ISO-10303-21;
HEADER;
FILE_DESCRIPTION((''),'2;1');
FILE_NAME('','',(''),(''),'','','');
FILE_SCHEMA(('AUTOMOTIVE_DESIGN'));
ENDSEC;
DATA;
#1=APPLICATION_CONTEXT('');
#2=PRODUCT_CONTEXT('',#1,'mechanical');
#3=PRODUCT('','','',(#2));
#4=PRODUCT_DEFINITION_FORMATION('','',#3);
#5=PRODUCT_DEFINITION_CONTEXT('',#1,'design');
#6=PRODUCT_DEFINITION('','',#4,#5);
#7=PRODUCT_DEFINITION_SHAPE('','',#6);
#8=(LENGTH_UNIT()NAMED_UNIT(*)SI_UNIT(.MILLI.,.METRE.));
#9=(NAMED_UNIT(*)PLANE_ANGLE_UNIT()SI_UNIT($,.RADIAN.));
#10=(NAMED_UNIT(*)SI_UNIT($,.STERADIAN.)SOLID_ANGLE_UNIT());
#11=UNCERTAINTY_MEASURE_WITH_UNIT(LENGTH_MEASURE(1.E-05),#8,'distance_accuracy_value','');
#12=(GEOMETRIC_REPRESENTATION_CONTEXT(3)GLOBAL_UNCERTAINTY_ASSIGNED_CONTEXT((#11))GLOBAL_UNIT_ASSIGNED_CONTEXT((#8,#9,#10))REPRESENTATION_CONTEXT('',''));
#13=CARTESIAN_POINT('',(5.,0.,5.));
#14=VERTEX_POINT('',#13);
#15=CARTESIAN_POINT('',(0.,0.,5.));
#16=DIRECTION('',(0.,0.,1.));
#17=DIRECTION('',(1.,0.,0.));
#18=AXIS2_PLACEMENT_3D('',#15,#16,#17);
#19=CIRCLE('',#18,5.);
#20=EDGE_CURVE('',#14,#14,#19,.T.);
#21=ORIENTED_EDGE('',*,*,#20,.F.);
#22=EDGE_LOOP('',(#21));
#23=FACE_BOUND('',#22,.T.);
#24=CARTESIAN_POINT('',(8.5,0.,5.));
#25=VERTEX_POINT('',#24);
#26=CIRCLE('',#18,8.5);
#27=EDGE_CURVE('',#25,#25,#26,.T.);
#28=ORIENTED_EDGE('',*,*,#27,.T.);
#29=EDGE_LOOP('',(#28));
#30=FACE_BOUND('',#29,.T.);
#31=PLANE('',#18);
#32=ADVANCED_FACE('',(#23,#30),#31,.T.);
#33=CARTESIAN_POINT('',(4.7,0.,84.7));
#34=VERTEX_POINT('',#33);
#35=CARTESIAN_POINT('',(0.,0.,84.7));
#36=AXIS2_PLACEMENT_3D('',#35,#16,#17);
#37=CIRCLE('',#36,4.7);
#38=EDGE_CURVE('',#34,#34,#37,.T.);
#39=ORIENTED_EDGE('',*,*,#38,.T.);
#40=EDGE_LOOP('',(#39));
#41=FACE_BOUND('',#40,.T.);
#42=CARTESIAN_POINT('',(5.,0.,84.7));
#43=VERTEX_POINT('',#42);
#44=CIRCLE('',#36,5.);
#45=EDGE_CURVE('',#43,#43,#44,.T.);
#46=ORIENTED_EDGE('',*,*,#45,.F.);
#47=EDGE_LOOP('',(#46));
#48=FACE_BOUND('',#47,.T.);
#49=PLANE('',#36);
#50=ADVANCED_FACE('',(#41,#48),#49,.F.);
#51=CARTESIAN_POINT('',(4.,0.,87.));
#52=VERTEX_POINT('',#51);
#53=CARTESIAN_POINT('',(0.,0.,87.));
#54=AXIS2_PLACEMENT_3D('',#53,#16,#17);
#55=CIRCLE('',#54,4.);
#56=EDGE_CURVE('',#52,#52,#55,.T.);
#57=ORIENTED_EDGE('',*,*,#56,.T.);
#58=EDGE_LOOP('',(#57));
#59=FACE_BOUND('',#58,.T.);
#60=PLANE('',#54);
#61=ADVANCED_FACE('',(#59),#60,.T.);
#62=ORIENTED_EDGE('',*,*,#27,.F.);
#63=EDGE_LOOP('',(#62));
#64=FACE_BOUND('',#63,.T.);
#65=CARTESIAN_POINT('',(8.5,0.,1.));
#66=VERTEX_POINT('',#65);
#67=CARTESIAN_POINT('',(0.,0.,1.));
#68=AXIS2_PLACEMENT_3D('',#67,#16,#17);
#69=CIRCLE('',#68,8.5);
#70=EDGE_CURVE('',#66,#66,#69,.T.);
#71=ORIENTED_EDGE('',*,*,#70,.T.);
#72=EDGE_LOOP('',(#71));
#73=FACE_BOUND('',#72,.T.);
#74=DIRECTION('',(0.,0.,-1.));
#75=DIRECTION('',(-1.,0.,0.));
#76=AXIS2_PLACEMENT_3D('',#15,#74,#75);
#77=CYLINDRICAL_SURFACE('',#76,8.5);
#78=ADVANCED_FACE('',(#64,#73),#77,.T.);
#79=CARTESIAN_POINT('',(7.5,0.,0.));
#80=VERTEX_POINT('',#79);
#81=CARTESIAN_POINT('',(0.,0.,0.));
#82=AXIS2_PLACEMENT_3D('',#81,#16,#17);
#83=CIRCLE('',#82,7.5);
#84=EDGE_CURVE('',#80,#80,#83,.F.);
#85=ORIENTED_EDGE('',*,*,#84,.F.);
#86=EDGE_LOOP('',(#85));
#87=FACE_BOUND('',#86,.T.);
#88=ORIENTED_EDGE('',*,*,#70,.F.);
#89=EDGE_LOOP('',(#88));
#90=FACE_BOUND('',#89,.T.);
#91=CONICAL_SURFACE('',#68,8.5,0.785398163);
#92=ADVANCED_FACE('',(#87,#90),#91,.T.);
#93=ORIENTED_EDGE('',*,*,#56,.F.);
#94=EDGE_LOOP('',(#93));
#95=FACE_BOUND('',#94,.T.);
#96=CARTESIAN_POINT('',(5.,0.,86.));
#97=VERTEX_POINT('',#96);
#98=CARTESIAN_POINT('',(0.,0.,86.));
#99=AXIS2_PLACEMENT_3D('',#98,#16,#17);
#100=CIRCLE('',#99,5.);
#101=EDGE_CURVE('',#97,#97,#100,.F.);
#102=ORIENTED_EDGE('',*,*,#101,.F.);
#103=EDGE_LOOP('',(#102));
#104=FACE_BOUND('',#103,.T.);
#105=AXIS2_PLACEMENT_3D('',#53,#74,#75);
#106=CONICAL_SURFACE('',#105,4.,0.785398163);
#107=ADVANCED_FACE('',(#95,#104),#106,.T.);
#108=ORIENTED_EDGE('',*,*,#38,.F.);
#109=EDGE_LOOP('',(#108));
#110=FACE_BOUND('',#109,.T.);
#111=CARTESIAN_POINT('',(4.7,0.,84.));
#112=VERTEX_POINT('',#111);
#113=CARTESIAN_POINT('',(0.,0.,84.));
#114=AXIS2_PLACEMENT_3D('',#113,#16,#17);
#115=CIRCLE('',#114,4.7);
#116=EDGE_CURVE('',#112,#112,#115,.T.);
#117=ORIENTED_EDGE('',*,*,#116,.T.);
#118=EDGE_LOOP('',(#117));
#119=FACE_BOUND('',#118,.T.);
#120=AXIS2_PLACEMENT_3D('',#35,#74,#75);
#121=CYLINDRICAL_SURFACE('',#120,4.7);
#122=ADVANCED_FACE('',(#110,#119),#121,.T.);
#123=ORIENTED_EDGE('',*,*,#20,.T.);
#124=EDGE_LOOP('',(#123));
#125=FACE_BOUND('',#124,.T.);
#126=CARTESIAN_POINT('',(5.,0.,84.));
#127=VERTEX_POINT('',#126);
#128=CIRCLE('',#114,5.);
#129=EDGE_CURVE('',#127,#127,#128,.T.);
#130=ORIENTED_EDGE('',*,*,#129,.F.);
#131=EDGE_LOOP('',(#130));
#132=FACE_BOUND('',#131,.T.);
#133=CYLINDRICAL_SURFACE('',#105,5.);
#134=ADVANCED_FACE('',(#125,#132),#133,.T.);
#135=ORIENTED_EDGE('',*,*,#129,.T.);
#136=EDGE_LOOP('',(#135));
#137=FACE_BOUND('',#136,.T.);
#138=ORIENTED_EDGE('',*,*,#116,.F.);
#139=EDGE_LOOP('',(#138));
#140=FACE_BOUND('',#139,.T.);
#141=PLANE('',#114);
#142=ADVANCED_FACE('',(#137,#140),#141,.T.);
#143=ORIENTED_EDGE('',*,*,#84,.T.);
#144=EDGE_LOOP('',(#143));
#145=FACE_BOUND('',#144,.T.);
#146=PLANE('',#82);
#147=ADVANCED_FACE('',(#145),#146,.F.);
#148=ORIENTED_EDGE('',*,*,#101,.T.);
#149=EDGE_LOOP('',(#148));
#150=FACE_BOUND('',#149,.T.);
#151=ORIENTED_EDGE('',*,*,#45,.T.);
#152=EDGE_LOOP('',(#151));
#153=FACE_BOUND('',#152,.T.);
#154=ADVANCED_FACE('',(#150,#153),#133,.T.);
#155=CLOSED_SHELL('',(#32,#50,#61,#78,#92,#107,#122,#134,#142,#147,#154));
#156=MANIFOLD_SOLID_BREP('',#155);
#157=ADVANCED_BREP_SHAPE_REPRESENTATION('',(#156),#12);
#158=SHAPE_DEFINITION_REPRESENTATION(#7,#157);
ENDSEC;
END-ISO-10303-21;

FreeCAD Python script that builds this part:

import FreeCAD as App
import Part
import Sketcher
from FreeCAD import Vector
Q = App.Units.Quantity


def edges_at(feature, points):
    """Names of the edges that pass closest to the given points."""
    edges = feature.Shape.Edges
    near = lambda p: min(range(len(edges)), key=lambda i: edges[i].distToShape(Part.Vertex(*p))[0])
    return sorted({f"Edge{near(p) + 1}" for p in points})

doc = App.newDocument("Part")
body = doc.addObject("PartDesign::Body", "Body")

# Sketch on XY plane
sketch1 = body.newObject("Sketcher::SketchObject", "Sketch")
sketch1.AttachmentSupport = (doc.getObject("XY_Plane"), [""])
sketch1.MapMode = "FlatFace"
sketch1.addGeometry(Part.Circle(Vector(0, 0, 0), Vector(0, 0, 1), 8), False)
sketch1.addConstraint(Sketcher.Constraint("Coincident", 0, 3, -1, 1))
sketch1.addConstraint(Sketcher.Constraint("Diameter", 0, Q("17 mm")))
pad1 = body.newObject("PartDesign::Pad", "Pad")
pad1.Profile = sketch1
pad1.Length = 5

# Sketch on XY plane
sketch2 = body.newObject("Sketcher::SketchObject", "Sketch001")
sketch2.AttachmentSupport = (doc.getObject("XY_Plane"), [""])
sketch2.MapMode = "FlatFace"
sketch2.AttachmentOffset = App.Placement(Vector(0, 0, 5), App.Rotation())
sketch2.addGeometry(Part.Circle(Vector(0, 0, 0), Vector(0, 0, 1), 5), False)
sketch2.addConstraint(Sketcher.Constraint("Coincident", 0, 3, -1, 1))
sketch2.addConstraint(Sketcher.Constraint("Diameter", 0, Q("10 mm")))
pad2 = body.newObject("PartDesign::Pad", "Pad001")
pad2.Profile = sketch2
pad2.Length = 82
doc.recompute()

chamfer = body.newObject("PartDesign::Chamfer", "Chamfer")
chamfer.Base = (pad2, edges_at(pad2, [(-8.5, 0, 0), (-5, 0, 87)]))
chamfer.Size = 1

# Sketch on XY plane
sketch3 = body.newObject("Sketcher::SketchObject", "Sketch002")
sketch3.AttachmentSupport = (doc.getObject("XY_Plane"), [""])
sketch3.MapMode = "FlatFace"
sketch3.AttachmentOffset = App.Placement(Vector(0, 0, 84), App.Rotation())
sketch3.addGeometry(Part.Circle(Vector(0, 0, 0), Vector(0, 0, 1), 14.7), False)
sketch3.addGeometry(Part.Circle(Vector(0, 0, 0), Vector(0, 0, 1), 4.7), False)
sketch3.addConstraint(Sketcher.Constraint("Coincident", 0, 3, -1, 1))
sketch3.addConstraint(Sketcher.Constraint("Coincident", 1, 3, -1, 1))
sketch3.addConstraint(Sketcher.Constraint("Diameter", 0, Q("29.4 mm")))
sketch3.addConstraint(Sketcher.Constraint("Diameter", 1, Q("9.4 mm")))
pocket1 = body.newObject("PartDesign::Pocket", "Pocket")
pocket1.Profile = sketch3
pocket1.Length = 0.7
pocket1.Reversed = True

doc.recompute()
